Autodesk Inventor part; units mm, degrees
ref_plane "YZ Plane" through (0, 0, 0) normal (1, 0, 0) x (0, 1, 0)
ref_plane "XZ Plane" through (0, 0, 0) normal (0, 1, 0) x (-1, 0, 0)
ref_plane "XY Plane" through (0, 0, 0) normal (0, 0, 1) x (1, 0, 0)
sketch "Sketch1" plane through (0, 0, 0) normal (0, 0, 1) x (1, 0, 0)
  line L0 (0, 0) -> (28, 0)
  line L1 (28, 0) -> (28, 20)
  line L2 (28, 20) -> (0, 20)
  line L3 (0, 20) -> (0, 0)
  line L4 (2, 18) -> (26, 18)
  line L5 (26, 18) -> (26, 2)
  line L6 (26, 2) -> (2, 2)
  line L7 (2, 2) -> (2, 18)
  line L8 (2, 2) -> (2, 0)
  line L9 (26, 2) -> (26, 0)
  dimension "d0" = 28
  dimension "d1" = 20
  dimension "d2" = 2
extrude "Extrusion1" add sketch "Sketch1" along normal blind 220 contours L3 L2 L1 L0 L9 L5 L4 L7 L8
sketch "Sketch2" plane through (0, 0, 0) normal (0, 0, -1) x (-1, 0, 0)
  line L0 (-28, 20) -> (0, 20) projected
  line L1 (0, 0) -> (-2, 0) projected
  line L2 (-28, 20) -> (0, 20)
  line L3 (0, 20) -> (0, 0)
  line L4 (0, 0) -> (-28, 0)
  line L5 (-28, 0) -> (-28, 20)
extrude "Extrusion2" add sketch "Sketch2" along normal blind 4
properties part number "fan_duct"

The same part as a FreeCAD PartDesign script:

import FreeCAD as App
import Part
import Sketcher
from FreeCAD import Vector

doc = App.newDocument("Part")
body = doc.addObject("PartDesign::Body", "Body")

# Sketch on XY plane
sketch1 = doc.addObject("Sketcher::SketchObject", "Sketch")
body.addObject(sketch1)
sketch1.AttachmentSupport = (doc.XY_Plane, [""])
sketch1.MapMode = "FlatFace"
sketch1.addGeometry(Part.LineSegment(Vector(0, 20, 0), Vector(0, 0, 0)), False)
sketch1.addGeometry(Part.LineSegment(Vector(0, 0, 0), Vector(2, 0, 0)), False)
sketch1.addGeometry(Part.LineSegment(Vector(2, 0, 0), Vector(2, 18, 0)), False)
sketch1.addGeometry(Part.LineSegment(Vector(2, 18, 0), Vector(26, 18, 0)), False)
sketch1.addGeometry(Part.LineSegment(Vector(26, 18, 0), Vector(26, 0, 0)), False)
sketch1.addGeometry(Part.LineSegment(Vector(26, 0, 0), Vector(28, 0, 0)), False)
sketch1.addGeometry(Part.LineSegment(Vector(28, 0, 0), Vector(28, 20, 0)), False)
sketch1.addGeometry(Part.LineSegment(Vector(28, 20, 0), Vector(0, 20, 0)), False)
sketch1.addConstraint(Sketcher.Constraint("Coincident", 0, 2, 1, 1))
sketch1.addConstraint(Sketcher.Constraint("Coincident", 1, 2, 2, 1))
sketch1.addConstraint(Sketcher.Constraint("Coincident", 2, 2, 3, 1))
sketch1.addConstraint(Sketcher.Constraint("Coincident", 3, 2, 4, 1))
sketch1.addConstraint(Sketcher.Constraint("Coincident", 4, 2, 5, 1))
sketch1.addConstraint(Sketcher.Constraint("Coincident", 5, 2, 6, 1))
sketch1.addConstraint(Sketcher.Constraint("Coincident", 6, 2, 7, 1))
sketch1.addConstraint(Sketcher.Constraint("Coincident", 7, 2, 0, 1))
sketch1.addConstraint(Sketcher.Constraint("Vertical", 0))
sketch1.addConstraint(Sketcher.Constraint("Horizontal", 1))
sketch1.addConstraint(Sketcher.Constraint("Vertical", 2))
sketch1.addConstraint(Sketcher.Constraint("Horizontal", 3))
sketch1.addConstraint(Sketcher.Constraint("Vertical", 4))
sketch1.addConstraint(Sketcher.Constraint("Horizontal", 5))
sketch1.addConstraint(Sketcher.Constraint("Vertical", 6))
sketch1.addConstraint(Sketcher.Constraint("Horizontal", 7))
sketch1.addConstraint(Sketcher.Constraint("Coincident", 0, 2, -1, 1))
sketch1.addConstraint(Sketcher.Constraint("PointOnObject", 4, 2, -1))
sketch1.addConstraint(Sketcher.Constraint("Equal", 1, 5))
sketch1.addConstraint(Sketcher.Constraint("DistanceX", 1, 1, 1, 2, 2.0))
sketch1.addConstraint(Sketcher.Constraint("DistanceX", 7, 2, 7, 1, 28.0))
sketch1.addConstraint(Sketcher.Constraint("DistanceY", 0, 2, 0, 1, 20.0))
sketch1.addConstraint(Sketcher.Constraint("DistanceY", 3, 2, 6, 2, 2.0))
pad1 = doc.addObject("PartDesign::Pad", "Pad")
body.addObject(pad1)
pad1.Profile = sketch1
pad1.Length = 220

# Sketch on XY plane
sketch2 = doc.addObject("Sketcher::SketchObject", "Sketch001")
body.addObject(sketch2)
sketch2.AttachmentSupport = (doc.XY_Plane, [""])
sketch2.MapMode = "FlatFace"
sketch2.addGeometry(Part.LineSegment(Vector(0, 20, 0), Vector(28, 20, 0)), False)
sketch2.addGeometry(Part.LineSegment(Vector(28, 20, 0), Vector(28, 0, 0)), False)
sketch2.addGeometry(Part.LineSegment(Vector(28, 0, 0), Vector(0, 0, 0)), False)
sketch2.addGeometry(Part.LineSegment(Vector(0, 0, 0), Vector(0, 20, 0)), False)
sketch2.addConstraint(Sketcher.Constraint("Coincident", 0, 2, 1, 1))
sketch2.addConstraint(Sketcher.Constraint("Coincident", 1, 2, 2, 1))
sketch2.addConstraint(Sketcher.Constraint("Coincident", 2, 2, 3, 1))
sketch2.addConstraint(Sketcher.Constraint("Coincident", 3, 2, 0, 1))
sketch2.addConstraint(Sketcher.Constraint("Horizontal", 0))
sketch2.addConstraint(Sketcher.Constraint("Vertical", 1))
sketch2.addConstraint(Sketcher.Constraint("Horizontal", 2))
sketch2.addConstraint(Sketcher.Constraint("Vertical", 3))
sketch2.addConstraint(Sketcher.Constraint("Coincident", 2, 2, -1, 1))
sketch2.addConstraint(Sketcher.Constraint("DistanceX", 0, 1, 0, 2, 28.0))
sketch2.addConstraint(Sketcher.Constraint("DistanceY", 1, 2, 1, 1, 20.0))
pad2 = doc.addObject("PartDesign::Pad", "Pad001")
body.addObject(pad2)
pad2.Profile = sketch2
pad2.Length = 4
pad2.Reversed = True

doc.recompute()
